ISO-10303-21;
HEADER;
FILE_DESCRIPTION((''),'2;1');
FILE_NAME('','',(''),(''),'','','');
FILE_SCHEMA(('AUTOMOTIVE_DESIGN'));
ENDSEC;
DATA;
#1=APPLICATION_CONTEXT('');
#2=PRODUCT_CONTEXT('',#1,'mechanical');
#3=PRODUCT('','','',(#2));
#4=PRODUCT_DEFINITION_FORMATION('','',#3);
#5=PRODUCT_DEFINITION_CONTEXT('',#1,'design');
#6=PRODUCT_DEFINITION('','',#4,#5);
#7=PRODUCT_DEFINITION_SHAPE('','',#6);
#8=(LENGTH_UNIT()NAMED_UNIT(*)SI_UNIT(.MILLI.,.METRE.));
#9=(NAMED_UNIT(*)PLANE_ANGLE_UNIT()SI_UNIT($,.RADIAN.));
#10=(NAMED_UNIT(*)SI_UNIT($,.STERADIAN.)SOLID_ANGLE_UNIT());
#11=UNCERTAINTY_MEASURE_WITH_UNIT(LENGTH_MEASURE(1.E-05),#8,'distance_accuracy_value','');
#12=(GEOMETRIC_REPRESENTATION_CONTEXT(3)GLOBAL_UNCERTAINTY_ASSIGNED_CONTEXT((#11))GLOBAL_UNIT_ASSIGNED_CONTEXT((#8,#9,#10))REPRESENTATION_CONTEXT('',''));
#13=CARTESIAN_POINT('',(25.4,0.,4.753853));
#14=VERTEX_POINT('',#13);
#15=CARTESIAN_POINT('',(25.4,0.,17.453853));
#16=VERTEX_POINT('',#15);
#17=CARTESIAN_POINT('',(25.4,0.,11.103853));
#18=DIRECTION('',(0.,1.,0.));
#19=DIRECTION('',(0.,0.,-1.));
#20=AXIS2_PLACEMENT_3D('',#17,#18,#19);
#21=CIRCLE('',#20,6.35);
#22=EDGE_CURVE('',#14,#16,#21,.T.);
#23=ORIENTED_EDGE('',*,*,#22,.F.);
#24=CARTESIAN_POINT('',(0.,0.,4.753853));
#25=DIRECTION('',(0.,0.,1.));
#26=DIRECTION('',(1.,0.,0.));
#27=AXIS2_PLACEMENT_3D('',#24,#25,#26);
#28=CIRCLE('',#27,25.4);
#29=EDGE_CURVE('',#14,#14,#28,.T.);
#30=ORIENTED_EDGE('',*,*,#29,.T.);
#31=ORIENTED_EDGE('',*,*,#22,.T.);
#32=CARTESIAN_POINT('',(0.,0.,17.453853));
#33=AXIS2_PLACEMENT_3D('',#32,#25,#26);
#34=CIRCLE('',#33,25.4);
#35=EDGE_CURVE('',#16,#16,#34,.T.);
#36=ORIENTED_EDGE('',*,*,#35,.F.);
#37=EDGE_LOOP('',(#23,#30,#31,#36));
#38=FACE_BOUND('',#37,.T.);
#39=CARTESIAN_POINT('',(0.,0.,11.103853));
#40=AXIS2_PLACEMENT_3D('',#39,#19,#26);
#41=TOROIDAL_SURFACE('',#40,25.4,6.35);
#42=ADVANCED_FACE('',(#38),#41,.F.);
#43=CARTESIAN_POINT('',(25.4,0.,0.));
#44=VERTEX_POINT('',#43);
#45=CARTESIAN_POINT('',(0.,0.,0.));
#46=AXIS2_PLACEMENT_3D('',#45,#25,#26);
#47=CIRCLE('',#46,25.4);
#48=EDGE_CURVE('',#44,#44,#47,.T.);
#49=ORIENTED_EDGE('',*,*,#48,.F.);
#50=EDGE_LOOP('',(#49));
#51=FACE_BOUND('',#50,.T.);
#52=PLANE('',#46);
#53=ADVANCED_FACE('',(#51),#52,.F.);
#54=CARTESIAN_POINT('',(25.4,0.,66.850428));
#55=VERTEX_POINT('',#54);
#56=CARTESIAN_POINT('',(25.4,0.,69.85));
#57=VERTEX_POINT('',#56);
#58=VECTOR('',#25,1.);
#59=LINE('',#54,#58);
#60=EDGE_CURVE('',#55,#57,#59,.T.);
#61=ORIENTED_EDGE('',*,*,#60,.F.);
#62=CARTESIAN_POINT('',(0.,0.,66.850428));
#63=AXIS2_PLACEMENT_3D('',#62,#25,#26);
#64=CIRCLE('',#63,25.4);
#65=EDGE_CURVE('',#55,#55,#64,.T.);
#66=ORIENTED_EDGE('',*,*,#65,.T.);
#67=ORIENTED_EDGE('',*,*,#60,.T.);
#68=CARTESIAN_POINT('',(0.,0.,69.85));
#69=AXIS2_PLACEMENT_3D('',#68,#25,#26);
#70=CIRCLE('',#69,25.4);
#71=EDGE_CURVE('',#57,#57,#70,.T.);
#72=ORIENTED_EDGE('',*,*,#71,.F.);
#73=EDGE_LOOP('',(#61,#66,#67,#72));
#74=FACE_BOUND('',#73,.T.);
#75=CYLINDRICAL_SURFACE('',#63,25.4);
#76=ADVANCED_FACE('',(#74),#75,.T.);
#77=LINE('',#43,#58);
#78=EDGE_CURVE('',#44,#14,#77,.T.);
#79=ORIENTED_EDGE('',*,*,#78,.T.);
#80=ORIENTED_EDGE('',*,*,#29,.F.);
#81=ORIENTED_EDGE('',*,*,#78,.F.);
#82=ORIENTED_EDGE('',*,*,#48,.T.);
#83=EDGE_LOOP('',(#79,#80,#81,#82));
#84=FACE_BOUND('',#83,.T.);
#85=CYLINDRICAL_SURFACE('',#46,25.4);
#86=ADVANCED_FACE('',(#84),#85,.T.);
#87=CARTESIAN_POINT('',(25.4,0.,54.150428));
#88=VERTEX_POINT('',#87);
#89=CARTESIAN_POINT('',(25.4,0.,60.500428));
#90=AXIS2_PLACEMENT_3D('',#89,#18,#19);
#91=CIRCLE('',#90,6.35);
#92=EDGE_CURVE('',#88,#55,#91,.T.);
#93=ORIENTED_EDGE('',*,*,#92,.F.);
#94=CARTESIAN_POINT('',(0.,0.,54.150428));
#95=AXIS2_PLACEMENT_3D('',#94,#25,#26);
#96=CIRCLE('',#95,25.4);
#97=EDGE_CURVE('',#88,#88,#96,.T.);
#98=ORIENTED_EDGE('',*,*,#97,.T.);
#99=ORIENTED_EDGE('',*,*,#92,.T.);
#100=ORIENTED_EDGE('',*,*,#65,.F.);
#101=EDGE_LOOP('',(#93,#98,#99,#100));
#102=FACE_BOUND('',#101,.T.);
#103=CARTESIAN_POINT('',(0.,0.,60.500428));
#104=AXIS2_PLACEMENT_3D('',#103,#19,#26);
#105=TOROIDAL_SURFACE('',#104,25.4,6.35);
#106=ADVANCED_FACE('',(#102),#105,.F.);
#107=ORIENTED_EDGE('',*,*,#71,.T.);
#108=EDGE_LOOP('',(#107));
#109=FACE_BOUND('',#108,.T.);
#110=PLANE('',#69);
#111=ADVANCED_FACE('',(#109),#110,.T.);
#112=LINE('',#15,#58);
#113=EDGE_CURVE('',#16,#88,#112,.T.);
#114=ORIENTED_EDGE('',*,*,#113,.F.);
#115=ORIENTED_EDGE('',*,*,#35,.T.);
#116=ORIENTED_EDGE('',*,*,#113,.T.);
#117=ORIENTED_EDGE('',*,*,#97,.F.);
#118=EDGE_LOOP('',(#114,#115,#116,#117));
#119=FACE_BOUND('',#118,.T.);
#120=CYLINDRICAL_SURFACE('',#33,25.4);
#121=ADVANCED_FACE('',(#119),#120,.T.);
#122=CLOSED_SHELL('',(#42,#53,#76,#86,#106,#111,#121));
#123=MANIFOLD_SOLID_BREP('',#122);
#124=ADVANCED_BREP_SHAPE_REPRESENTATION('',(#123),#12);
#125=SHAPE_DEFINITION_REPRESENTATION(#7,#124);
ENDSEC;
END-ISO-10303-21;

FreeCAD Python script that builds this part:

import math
import FreeCAD as App
import Part
import Sketcher

V = App.Vector
Q = App.Units.Quantity

doc = App.newDocument("Part")
body = doc.addObject("PartDesign::Body", "Body")

# Sketch on XZ plane
sketch1 = body.newObject("Sketcher::SketchObject", "Sketch")
sketch1.AttachmentSupport = (doc.getObject("XZ_Plane"), [""])
sketch1.MapMode = "FlatFace"
sketch1.addGeometry([
    Part.LineSegment(V(0, 69.8, 0), V(0, 0, 0)),  # 0
    Part.LineSegment(V(0, 0, 0), V(25.4, 0, 0)),  # 1
    Part.LineSegment(V(25.4, 0, 0), V(25.4, 4.8, 0)),  # 2
    Part.ArcOfCircle(Part.Circle(V(25.4, 11.1, 0), V(0, 0, 1), 6.3), math.radians(90), math.radians(270)),  # 3
    Part.LineSegment(V(25.4, 17.5, 0), V(25.4, 54.2, 0)),  # 4
    Part.ArcOfCircle(Part.Circle(V(25.4, 60.5, 0), V(0, 0, 1), 6.3), math.radians(90), math.radians(270)),  # 5
    Part.LineSegment(V(25.4, 66.9, 0), V(25.4, 69.8, 0)),  # 6
    Part.LineSegment(V(25.4, 69.8, 0), V(0, 69.8, 0)),  # 7
], False)
sketch1.addConstraint([
    Sketcher.Constraint("Coincident", 0, 2, 1, 1),
    Sketcher.Constraint("Coincident", 1, 2, 2, 1),
    Sketcher.Constraint("Coincident", 2, 2, 3, 2),
    Sketcher.Constraint("Coincident", 3, 1, 4, 1),
    Sketcher.Constraint("Coincident", 4, 2, 5, 2),
    Sketcher.Constraint("Coincident", 5, 1, 6, 1),
    Sketcher.Constraint("Coincident", 6, 2, 7, 1),
    Sketcher.Constraint("Coincident", 7, 2, 0, 1),
    Sketcher.Constraint("Vertical", 0),
    Sketcher.Constraint("Horizontal", 1),
    Sketcher.Constraint("Vertical", 2),
    Sketcher.Constraint("Vertical", 4),
    Sketcher.Constraint("Vertical", 6),
    Sketcher.Constraint("Horizontal", 7),
    Sketcher.Constraint("Coincident", 0, 2, -1, 1),
    Sketcher.Constraint("Equal", 3, 5),
    Sketcher.Constraint("Vertical", 3, 3, 5, 3),
    Sketcher.Constraint("Vertical", 5, 3, 1, 2),
    Sketcher.Constraint("Vertical", 2, 2, 3, 1),
    Sketcher.Constraint("Vertical", 4, 2, 5, 1),
    Sketcher.Constraint("DistanceX", 1, 1, 1, 2, Q("1 in")),
    Sketcher.Constraint("Radius", 3, Q("0.25 in")),
    Sketcher.Constraint("DistanceY", 0, 2, 0, 1, Q("2.75 in")),
    Sketcher.Constraint("DistanceY", 2, 1, 2, 2, Q("4.753853 mm")),
    Sketcher.Constraint("DistanceY", 4, 1, 4, 2, Q("36.696575 mm")),
])
revolution = body.newObject("PartDesign::Revolution", "Revolution")
revolution.Profile = sketch1
revolution.ReferenceAxis = (sketch1, ["V_Axis"])
revolution.Angle = 360

doc.recompute()
